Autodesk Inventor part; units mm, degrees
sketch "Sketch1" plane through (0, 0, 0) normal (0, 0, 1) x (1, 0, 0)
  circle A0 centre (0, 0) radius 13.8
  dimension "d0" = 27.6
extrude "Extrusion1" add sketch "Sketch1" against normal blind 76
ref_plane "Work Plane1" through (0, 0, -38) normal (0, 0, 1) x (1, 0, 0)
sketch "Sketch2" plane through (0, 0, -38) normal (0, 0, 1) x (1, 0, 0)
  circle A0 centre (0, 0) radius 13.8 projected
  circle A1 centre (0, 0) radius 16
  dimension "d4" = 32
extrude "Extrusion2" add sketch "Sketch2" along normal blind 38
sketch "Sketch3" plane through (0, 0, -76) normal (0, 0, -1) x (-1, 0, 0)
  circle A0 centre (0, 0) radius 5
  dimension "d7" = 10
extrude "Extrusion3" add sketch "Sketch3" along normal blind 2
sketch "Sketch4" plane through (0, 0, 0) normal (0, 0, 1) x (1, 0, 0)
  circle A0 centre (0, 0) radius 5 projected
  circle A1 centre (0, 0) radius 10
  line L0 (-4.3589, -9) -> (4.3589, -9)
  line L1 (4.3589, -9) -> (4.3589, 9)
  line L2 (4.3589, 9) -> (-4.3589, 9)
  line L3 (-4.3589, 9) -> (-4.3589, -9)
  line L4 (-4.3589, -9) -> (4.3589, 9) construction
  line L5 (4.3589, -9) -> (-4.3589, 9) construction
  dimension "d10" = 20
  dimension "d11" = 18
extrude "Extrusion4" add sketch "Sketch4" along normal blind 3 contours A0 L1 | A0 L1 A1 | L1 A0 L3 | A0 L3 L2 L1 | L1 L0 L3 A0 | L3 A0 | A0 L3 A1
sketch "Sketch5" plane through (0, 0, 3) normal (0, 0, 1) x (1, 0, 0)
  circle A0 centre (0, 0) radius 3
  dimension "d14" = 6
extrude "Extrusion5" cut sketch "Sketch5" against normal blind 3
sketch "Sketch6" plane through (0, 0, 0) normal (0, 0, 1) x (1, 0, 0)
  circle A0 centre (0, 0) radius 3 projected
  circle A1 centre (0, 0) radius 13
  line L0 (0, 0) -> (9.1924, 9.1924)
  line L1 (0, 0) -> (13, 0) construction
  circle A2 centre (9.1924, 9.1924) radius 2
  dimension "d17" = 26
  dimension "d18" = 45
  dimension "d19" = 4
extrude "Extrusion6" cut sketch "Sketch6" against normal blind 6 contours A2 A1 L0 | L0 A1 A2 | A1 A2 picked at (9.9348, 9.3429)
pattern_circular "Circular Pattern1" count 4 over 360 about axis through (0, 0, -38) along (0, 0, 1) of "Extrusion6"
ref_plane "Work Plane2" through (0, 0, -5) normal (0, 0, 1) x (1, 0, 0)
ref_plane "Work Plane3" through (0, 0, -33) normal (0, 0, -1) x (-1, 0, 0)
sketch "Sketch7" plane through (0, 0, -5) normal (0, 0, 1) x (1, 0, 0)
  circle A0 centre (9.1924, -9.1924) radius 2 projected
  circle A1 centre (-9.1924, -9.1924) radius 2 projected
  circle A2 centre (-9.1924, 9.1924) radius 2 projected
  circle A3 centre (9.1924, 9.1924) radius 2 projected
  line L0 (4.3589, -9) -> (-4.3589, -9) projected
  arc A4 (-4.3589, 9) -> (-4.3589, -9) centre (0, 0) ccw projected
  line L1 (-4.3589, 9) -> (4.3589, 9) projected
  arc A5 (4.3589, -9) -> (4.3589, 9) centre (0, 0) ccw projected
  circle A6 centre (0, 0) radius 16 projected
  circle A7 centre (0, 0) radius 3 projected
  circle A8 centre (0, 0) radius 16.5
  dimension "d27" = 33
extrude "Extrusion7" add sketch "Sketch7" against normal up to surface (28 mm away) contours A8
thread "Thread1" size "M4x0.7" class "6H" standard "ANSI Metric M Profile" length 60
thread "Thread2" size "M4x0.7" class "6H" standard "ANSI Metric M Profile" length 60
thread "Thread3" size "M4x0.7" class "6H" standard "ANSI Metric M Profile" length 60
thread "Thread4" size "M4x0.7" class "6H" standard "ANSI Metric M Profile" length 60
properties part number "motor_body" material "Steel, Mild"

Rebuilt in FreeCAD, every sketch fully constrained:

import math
import FreeCAD as App
import Part
import Sketcher
from FreeCAD import Vector

doc = App.newDocument("Part")
body = doc.addObject("PartDesign::Body", "Body")

# Sketch on XY plane
sketch1 = body.newObject("Sketcher::SketchObject", "Sketch")
sketch1.AttachmentSupport = (doc.getObject("XY_Plane"), [""])
sketch1.MapMode = "FlatFace"
sketch1.addGeometry(Part.Circle(Vector(0, 0, 0), Vector(0, 0, 1), 14), False)
sketch1.addConstraint([
    Sketcher.Constraint("Coincident", 0, 3, -1, 1),
    Sketcher.Constraint("Diameter", 0, 27.6),
])
pad1 = body.newObject("PartDesign::Pad", "Pad")
pad1.Profile = sketch1
pad1.Length = 76
pad1.Reversed = True

# Sketch on XY plane
sketch2 = body.newObject("Sketcher::SketchObject", "Sketch001")
sketch2.AttachmentSupport = (doc.getObject("XY_Plane"), [""])
sketch2.MapMode = "FlatFace"
sketch2.AttachmentOffset = App.Placement(Vector(0, 0, -38), App.Rotation())
sketch2.addGeometry([
    Part.Circle(Vector(0, 0, 0), Vector(0, 0, 1), 16),
    Part.Circle(Vector(0, 0, 0), Vector(0, 0, 1), 14),
], False)
sketch2.addConstraint([
    Sketcher.Constraint("Coincident", 0, 3, -1, 1),
    Sketcher.Constraint("Coincident", 1, 3, -1, 1),
    Sketcher.Constraint("Diameter", 0, 32.0),
    Sketcher.Constraint("Diameter", 1, 27.6),
])
pad2 = body.newObject("PartDesign::Pad", "Pad001")
pad2.Profile = sketch2
pad2.Length = 38

# Sketch on XY plane
sketch3 = body.newObject("Sketcher::SketchObject", "Sketch002")
sketch3.AttachmentSupport = (doc.getObject("XY_Plane"), [""])
sketch3.MapMode = "FlatFace"
sketch3.AttachmentOffset = App.Placement(Vector(0, 0, -76), App.Rotation())
sketch3.addGeometry(Part.Circle(Vector(0, 0, 0), Vector(0, 0, 1), 5), False)
sketch3.addConstraint([
    Sketcher.Constraint("Coincident", 0, 3, -1, 1),
    Sketcher.Constraint("Diameter", 0, 10.0),
])
pad3 = body.newObject("PartDesign::Pad", "Pad002")
pad3.Profile = sketch3
pad3.Length = 2
pad3.Reversed = True

# Sketch on XY plane
sketch4 = body.newObject("Sketcher::SketchObject", "Sketch003")
sketch4.AttachmentSupport = (doc.getObject("XY_Plane"), [""])
sketch4.MapMode = "FlatFace"
sketch4.addGeometry([
    Part.LineSegment(Vector(4, 9, 0), Vector(-4, 9, 0)),
    Part.ArcOfCircle(Part.Circle(Vector(0, 0, 0), Vector(0, 0, 1), 10), math.radians(116), math.radians(244)),
    Part.LineSegment(Vector(-4, -9, 0), Vector(4, -9, 0)),
    Part.ArcOfCircle(Part.Circle(Vector(0, 0, 0), Vector(0, 0, 1), 10), math.radians(-64), math.radians(64)),
], False)
sketch4.addConstraint([
    Sketcher.Constraint("Coincident", 0, 2, 1, 1),
    Sketcher.Constraint("Coincident", 1, 2, 2, 1),
    Sketcher.Constraint("Coincident", 2, 2, 3, 1),
    Sketcher.Constraint("Coincident", 3, 2, 0, 1),
    Sketcher.Constraint("Horizontal", 0),
    Sketcher.Constraint("Horizontal", 2),
    Sketcher.Constraint("Coincident", 1, 3, -1, 1),
    Sketcher.Constraint("Coincident", 3, 3, -1, 1),
    Sketcher.Constraint("Equal", 1, 3),
    Sketcher.Constraint("Vertical", 0, 2, 1, 2),
    Sketcher.Constraint("Radius", 1, 10.0),
    Sketcher.Constraint("DistanceY", 1, 2, 0, 2, 18.0),
])
pad4 = body.newObject("PartDesign::Pad", "Pad003")
pad4.Profile = sketch4
pad4.Length = 3

# Sketch on XY plane
sketch5 = body.newObject("Sketcher::SketchObject", "Sketch004")
sketch5.AttachmentSupport = (doc.getObject("XY_Plane"), [""])
sketch5.MapMode = "FlatFace"
sketch5.AttachmentOffset = App.Placement(Vector(0, 0, 3), App.Rotation())
sketch5.addGeometry(Part.Circle(Vector(0, 0, 0), Vector(0, 0, 1), 3), False)
sketch5.addConstraint([
    Sketcher.Constraint("Coincident", 0, 3, -1, 1),
    Sketcher.Constraint("Diameter", 0, 6.0),
])
pocket1 = body.newObject("PartDesign::Pocket", "Pocket")
pocket1.Profile = sketch5
pocket1.Length = 3

# Sketch on XY plane
sketch6 = body.newObject("Sketcher::SketchObject", "Sketch005")
sketch6.AttachmentSupport = (doc.getObject("XY_Plane"), [""])
sketch6.MapMode = "FlatFace"
sketch6.addGeometry(Part.Circle(Vector(9.2, 9.2, 0), Vector(0, 0, 1), 2), False)
sketch6.addConstraint([
    Sketcher.Constraint("Diameter", 0, 4.0),
    Sketcher.Constraint("DistanceX", -1, 1, 0, 3, 9.1924),
    Sketcher.Constraint("DistanceY", -1, 1, 0, 3, 9.1924),
])
pocket2 = body.newObject("PartDesign::Pocket", "Pocket001")
pocket2.Profile = sketch6
pocket2.Length = 6
doc.recompute()

polarpattern = body.newObject("PartDesign::PolarPattern", "PolarPattern")
polarpattern.Originals = [pocket2]
polarpattern.Axis = (doc.getObject("Z_Axis"), [""])
polarpattern.Angle = 360
polarpattern.Occurrences = 4
body.Tip = polarpattern

# Sketch on XY plane
sketch7 = body.newObject("Sketcher::SketchObject", "Sketch006")
sketch7.AttachmentSupport = (doc.getObject("XY_Plane"), [""])
sketch7.MapMode = "FlatFace"
sketch7.AttachmentOffset = App.Placement(Vector(0, 0, -5), App.Rotation())
sketch7.addGeometry([
    Part.Circle(Vector(0, 0, 0), Vector(0, 0, 1), 16),
    Part.Circle(Vector(0, 0, 0), Vector(0, 0, 1), 16),
], False)
sketch7.addConstraint([
    Sketcher.Constraint("Coincident", 0, 3, -1, 1),
    Sketcher.Constraint("Coincident", 1, 3, -1, 1),
    Sketcher.Constraint("Diameter", 0, 33.0),
    Sketcher.Constraint("Diameter", 1, 32.0),
])
pad5 = body.newObject("PartDesign::Pad", "Pad004")
pad5.Profile = sketch7
pad5.Length = 28
pad5.Reversed = True

doc.recompute()
